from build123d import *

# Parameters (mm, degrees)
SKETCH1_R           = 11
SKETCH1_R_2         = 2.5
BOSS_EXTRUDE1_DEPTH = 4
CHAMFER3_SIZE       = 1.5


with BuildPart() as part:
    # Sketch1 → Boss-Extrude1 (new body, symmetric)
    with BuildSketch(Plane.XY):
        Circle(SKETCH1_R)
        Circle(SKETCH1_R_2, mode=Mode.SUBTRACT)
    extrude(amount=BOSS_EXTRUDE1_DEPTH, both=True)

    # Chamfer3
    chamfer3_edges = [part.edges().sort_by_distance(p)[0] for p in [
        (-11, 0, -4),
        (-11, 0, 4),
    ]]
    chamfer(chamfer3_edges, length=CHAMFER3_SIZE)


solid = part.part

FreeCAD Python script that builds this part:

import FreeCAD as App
import Part
import Sketcher
from FreeCAD import Vector


def edges_at(feature, points):
    """Names of the edges that pass closest to the given points."""
    edges = feature.Shape.Edges
    near = lambda p: min(range(len(edges)), key=lambda i: edges[i].distToShape(Part.Vertex(*p))[0])
    return sorted({f"Edge{near(p) + 1}" for p in points})

doc = App.newDocument("Part")
body = doc.addObject("PartDesign::Body", "Body")

# Sketch on XY plane
sketch1 = doc.addObject("Sketcher::SketchObject", "Sketch")
body.addObject(sketch1)
sketch1.AttachmentSupport = (doc.XY_Plane, [""])
sketch1.MapMode = "FlatFace"
sketch1.addGeometry([
    Part.Circle(Vector(0, 0, 0), Vector(0, 0, 1), 11),
    Part.Circle(Vector(0, 0, 0), Vector(0, 0, 1), 2.5),
], False)
sketch1.addConstraint([
    Sketcher.Constraint("Coincident", 0, 3, -1, 1),
    Sketcher.Constraint("Coincident", 1, 3, -1, 1),
    Sketcher.Constraint("Diameter", 0, 22.0),
    Sketcher.Constraint("Diameter", 1, 5.0),
])
pad1 = doc.addObject("PartDesign::Pad", "Pad")
body.addObject(pad1)
pad1.Profile = sketch1
pad1.Length = 8
pad1.Midplane = True
doc.recompute()

chamfer = doc.addObject("PartDesign::Chamfer", "Chamfer")
body.addObject(chamfer)
chamfer.Base = (pad1, edges_at(pad1, [(-11, 0, -4), (-11, 0, 4)]))
chamfer.Size = 1.5

doc.recompute()
